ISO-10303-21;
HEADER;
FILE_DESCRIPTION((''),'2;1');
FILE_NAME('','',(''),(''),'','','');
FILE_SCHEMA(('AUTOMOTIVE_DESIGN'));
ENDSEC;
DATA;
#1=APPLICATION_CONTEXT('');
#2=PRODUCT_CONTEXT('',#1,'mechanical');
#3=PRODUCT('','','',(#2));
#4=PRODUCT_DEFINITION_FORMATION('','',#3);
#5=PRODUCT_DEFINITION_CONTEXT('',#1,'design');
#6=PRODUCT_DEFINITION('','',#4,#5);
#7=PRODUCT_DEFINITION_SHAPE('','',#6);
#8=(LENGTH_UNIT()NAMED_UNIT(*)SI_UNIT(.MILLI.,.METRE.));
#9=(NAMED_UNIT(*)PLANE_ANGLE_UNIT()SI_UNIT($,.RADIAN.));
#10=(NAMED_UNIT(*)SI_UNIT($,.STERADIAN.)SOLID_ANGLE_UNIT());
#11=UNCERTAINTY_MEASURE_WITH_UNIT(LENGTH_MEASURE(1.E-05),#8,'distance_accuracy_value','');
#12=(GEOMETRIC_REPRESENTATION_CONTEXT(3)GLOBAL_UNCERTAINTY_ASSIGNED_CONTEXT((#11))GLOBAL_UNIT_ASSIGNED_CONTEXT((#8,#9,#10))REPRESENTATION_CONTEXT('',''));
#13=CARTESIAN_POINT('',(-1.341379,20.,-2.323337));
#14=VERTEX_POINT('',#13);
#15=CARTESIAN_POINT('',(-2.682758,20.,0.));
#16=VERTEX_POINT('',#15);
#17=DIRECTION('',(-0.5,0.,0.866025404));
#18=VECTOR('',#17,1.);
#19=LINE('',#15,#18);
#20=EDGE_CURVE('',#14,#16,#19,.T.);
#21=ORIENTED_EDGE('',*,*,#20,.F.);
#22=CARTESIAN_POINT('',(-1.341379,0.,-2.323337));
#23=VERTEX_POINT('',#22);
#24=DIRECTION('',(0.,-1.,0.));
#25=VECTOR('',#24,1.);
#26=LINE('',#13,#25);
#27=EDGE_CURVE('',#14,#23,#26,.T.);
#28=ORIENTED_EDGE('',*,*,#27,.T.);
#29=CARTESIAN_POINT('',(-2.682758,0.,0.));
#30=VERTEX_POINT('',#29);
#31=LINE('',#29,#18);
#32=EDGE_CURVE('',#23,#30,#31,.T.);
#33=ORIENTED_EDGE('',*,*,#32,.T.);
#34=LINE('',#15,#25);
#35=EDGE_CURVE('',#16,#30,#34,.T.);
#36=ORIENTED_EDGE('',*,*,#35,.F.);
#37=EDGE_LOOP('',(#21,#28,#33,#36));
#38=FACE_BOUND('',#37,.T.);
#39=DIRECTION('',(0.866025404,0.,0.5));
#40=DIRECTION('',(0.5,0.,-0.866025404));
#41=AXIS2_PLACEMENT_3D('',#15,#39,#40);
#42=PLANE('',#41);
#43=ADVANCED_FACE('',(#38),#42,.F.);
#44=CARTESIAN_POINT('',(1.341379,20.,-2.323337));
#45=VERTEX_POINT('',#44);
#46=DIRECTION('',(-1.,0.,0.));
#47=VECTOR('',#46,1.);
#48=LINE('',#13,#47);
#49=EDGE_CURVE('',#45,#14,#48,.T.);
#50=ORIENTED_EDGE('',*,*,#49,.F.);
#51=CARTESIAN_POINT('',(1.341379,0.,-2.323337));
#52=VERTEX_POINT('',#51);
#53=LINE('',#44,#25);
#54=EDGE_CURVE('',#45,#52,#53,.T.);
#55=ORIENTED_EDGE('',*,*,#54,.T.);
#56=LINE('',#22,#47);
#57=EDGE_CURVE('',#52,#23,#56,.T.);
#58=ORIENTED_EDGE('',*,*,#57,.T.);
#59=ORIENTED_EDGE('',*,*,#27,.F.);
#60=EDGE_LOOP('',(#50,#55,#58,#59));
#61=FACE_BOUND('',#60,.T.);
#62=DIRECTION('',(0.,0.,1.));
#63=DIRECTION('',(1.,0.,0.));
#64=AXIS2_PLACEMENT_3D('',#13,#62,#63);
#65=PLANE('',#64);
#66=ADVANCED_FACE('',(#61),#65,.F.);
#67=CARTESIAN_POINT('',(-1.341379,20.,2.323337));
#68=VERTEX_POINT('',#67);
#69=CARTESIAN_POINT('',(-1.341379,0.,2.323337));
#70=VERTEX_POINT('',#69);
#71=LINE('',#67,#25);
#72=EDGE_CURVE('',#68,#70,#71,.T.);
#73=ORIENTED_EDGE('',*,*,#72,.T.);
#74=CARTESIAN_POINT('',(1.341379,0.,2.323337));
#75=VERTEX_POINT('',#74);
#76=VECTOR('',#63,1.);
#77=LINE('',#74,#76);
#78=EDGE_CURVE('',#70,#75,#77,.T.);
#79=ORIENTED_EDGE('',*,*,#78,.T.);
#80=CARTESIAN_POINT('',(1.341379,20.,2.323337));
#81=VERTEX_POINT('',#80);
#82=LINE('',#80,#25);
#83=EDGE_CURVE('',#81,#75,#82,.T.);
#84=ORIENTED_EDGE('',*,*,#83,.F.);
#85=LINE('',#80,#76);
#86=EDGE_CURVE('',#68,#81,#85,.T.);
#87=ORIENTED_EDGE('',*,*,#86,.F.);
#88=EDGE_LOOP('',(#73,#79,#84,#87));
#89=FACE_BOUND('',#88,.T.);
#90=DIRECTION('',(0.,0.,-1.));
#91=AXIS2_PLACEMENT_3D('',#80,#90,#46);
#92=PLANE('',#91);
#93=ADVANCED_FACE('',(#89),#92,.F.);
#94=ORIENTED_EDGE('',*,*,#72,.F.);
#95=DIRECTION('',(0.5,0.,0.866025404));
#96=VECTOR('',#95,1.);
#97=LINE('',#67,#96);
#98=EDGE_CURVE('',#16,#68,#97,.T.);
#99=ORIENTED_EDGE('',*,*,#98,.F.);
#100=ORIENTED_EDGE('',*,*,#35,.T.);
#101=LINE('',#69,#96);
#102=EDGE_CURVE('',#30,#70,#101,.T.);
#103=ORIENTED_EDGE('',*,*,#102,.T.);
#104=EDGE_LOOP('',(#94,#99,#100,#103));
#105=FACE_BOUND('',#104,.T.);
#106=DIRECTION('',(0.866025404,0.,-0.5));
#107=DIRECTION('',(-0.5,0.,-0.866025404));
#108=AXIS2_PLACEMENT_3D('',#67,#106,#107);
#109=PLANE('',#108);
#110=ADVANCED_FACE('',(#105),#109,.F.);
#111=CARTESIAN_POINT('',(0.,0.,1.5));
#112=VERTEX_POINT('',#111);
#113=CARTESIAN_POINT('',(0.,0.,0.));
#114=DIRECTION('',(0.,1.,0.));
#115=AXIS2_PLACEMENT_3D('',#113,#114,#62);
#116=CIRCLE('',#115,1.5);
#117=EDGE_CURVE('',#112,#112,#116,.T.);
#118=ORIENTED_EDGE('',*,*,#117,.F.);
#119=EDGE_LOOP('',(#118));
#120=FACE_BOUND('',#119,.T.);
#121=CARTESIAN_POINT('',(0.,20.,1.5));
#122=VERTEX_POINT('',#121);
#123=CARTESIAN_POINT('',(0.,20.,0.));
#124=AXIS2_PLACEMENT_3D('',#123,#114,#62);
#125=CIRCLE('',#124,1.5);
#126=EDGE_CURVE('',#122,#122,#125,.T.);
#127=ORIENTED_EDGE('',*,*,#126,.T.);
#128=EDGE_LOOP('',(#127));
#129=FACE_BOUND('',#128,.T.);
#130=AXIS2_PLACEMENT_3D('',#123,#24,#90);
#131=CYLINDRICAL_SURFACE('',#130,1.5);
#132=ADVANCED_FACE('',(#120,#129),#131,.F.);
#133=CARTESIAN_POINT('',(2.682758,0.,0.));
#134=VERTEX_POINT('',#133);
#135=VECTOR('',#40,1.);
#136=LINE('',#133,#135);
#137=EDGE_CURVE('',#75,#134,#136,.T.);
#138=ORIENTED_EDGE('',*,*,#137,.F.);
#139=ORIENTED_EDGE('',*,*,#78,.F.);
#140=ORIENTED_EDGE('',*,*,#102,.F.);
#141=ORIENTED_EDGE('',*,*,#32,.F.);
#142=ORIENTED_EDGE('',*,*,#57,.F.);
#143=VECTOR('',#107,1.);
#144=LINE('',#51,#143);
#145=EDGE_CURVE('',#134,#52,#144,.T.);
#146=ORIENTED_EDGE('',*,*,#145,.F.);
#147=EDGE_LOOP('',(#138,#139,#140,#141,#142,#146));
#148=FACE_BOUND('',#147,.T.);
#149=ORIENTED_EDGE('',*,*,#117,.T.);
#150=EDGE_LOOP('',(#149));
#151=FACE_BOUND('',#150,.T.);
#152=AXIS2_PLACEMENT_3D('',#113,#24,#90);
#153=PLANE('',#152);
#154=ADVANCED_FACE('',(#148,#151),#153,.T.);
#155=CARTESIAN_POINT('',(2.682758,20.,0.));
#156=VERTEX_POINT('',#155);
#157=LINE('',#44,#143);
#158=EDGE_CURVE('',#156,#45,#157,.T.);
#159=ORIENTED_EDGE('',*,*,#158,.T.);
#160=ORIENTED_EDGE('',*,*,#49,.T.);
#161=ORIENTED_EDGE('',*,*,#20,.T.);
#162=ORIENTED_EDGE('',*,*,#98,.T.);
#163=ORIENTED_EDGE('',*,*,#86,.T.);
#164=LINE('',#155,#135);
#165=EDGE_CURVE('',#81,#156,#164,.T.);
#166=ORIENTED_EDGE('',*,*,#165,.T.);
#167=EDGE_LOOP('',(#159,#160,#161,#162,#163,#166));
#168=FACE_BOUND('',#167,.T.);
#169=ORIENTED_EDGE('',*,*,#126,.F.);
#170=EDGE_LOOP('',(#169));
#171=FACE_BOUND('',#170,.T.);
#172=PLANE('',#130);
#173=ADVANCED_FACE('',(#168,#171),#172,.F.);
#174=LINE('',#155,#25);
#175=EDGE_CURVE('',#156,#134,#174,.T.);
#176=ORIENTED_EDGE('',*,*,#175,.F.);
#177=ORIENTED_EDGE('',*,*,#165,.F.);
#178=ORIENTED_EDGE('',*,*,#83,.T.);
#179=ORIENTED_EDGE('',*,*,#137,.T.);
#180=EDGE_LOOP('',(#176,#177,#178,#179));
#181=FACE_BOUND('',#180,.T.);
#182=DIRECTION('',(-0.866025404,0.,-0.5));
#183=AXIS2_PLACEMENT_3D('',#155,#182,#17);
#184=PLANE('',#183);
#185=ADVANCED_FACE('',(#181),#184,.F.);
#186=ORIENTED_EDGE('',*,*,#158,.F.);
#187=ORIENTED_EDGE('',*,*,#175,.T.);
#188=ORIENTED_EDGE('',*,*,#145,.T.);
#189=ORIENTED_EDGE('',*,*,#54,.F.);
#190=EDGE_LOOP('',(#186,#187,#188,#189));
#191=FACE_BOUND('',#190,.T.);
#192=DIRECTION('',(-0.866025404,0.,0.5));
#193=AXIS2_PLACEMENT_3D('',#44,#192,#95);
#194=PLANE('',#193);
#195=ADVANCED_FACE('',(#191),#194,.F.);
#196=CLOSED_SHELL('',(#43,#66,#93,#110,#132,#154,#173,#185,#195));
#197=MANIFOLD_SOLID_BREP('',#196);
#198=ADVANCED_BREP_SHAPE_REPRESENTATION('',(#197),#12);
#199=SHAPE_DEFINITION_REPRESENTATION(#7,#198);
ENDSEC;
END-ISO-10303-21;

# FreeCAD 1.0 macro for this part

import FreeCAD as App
import Part
import Sketcher
from FreeCAD import Vector
Q = App.Units.Quantity

doc = App.newDocument("Part")
body = doc.addObject("PartDesign::Body", "Body")

# Sketch on XZ plane
sketch1 = doc.addObject("Sketcher::SketchObject", "Sketch")
body.addObject(sketch1)
sketch1.AttachmentSupport = (doc.XZ_Plane, [""])
sketch1.MapMode = "FlatFace"
sketch1.addGeometry([
    Part.LineSegment(Vector(2.7, 0, 0), Vector(1.3, -2.3, 0)),  # 0
    Part.LineSegment(Vector(1.3, -2.3, 0), Vector(-1.3, -2.3, 0)),  # 1
    Part.LineSegment(Vector(-1.3, -2.3, 0), Vector(-2.7, 0, 0)),  # 2
    Part.LineSegment(Vector(-2.7, 0, 0), Vector(-1.3, 2.3, 0)),  # 3
    Part.LineSegment(Vector(-1.3, 2.3, 0), Vector(1.3, 2.3, 0)),  # 4
    Part.LineSegment(Vector(1.3, 2.3, 0), Vector(2.7, 0, 0)),  # 5
    Part.Circle(Vector(0, 0, 0), Vector(0, 0, 1), 1.5),  # 6
], False)
sketch1.addConstraint([
    Sketcher.Constraint("Coincident", 0, 2, 1, 1),
    Sketcher.Constraint("Coincident", 1, 2, 2, 1),
    Sketcher.Constraint("Coincident", 2, 2, 3, 1),
    Sketcher.Constraint("Coincident", 3, 2, 4, 1),
    Sketcher.Constraint("Coincident", 4, 2, 5, 1),
    Sketcher.Constraint("Coincident", 5, 2, 0, 1),
    Sketcher.Constraint("Horizontal", 1),
    Sketcher.Constraint("Horizontal", 4),
    Sketcher.Constraint("Coincident", 6, 3, -1, 1),
    Sketcher.Constraint("Symmetric", 0, 2, 3, 2, -1, 1),
    Sketcher.Constraint("Symmetric", 2, 2, 5, 2, -1, 1),
    Sketcher.Constraint("PointOnObject", 2, 2, -1),
    Sketcher.Constraint("Parallel", 2, 5),
    Sketcher.Constraint("Vertical", 1, 2, 3, 2),
    Sketcher.Constraint("Diameter", 6, 3.0),
    Sketcher.Constraint("Angle", 0, Q("-120 deg")),
    Sketcher.Constraint("DistanceX", 1, 2, 1, 1, 2.682758),
    Sketcher.Constraint("DistanceX", 2, 2, 1, 2, 1.341379),
])
pad1 = doc.addObject("PartDesign::Pad", "Pad")
body.addObject(pad1)
pad1.Profile = sketch1
pad1.Length = 20
pad1.Reversed = True

doc.recompute()
